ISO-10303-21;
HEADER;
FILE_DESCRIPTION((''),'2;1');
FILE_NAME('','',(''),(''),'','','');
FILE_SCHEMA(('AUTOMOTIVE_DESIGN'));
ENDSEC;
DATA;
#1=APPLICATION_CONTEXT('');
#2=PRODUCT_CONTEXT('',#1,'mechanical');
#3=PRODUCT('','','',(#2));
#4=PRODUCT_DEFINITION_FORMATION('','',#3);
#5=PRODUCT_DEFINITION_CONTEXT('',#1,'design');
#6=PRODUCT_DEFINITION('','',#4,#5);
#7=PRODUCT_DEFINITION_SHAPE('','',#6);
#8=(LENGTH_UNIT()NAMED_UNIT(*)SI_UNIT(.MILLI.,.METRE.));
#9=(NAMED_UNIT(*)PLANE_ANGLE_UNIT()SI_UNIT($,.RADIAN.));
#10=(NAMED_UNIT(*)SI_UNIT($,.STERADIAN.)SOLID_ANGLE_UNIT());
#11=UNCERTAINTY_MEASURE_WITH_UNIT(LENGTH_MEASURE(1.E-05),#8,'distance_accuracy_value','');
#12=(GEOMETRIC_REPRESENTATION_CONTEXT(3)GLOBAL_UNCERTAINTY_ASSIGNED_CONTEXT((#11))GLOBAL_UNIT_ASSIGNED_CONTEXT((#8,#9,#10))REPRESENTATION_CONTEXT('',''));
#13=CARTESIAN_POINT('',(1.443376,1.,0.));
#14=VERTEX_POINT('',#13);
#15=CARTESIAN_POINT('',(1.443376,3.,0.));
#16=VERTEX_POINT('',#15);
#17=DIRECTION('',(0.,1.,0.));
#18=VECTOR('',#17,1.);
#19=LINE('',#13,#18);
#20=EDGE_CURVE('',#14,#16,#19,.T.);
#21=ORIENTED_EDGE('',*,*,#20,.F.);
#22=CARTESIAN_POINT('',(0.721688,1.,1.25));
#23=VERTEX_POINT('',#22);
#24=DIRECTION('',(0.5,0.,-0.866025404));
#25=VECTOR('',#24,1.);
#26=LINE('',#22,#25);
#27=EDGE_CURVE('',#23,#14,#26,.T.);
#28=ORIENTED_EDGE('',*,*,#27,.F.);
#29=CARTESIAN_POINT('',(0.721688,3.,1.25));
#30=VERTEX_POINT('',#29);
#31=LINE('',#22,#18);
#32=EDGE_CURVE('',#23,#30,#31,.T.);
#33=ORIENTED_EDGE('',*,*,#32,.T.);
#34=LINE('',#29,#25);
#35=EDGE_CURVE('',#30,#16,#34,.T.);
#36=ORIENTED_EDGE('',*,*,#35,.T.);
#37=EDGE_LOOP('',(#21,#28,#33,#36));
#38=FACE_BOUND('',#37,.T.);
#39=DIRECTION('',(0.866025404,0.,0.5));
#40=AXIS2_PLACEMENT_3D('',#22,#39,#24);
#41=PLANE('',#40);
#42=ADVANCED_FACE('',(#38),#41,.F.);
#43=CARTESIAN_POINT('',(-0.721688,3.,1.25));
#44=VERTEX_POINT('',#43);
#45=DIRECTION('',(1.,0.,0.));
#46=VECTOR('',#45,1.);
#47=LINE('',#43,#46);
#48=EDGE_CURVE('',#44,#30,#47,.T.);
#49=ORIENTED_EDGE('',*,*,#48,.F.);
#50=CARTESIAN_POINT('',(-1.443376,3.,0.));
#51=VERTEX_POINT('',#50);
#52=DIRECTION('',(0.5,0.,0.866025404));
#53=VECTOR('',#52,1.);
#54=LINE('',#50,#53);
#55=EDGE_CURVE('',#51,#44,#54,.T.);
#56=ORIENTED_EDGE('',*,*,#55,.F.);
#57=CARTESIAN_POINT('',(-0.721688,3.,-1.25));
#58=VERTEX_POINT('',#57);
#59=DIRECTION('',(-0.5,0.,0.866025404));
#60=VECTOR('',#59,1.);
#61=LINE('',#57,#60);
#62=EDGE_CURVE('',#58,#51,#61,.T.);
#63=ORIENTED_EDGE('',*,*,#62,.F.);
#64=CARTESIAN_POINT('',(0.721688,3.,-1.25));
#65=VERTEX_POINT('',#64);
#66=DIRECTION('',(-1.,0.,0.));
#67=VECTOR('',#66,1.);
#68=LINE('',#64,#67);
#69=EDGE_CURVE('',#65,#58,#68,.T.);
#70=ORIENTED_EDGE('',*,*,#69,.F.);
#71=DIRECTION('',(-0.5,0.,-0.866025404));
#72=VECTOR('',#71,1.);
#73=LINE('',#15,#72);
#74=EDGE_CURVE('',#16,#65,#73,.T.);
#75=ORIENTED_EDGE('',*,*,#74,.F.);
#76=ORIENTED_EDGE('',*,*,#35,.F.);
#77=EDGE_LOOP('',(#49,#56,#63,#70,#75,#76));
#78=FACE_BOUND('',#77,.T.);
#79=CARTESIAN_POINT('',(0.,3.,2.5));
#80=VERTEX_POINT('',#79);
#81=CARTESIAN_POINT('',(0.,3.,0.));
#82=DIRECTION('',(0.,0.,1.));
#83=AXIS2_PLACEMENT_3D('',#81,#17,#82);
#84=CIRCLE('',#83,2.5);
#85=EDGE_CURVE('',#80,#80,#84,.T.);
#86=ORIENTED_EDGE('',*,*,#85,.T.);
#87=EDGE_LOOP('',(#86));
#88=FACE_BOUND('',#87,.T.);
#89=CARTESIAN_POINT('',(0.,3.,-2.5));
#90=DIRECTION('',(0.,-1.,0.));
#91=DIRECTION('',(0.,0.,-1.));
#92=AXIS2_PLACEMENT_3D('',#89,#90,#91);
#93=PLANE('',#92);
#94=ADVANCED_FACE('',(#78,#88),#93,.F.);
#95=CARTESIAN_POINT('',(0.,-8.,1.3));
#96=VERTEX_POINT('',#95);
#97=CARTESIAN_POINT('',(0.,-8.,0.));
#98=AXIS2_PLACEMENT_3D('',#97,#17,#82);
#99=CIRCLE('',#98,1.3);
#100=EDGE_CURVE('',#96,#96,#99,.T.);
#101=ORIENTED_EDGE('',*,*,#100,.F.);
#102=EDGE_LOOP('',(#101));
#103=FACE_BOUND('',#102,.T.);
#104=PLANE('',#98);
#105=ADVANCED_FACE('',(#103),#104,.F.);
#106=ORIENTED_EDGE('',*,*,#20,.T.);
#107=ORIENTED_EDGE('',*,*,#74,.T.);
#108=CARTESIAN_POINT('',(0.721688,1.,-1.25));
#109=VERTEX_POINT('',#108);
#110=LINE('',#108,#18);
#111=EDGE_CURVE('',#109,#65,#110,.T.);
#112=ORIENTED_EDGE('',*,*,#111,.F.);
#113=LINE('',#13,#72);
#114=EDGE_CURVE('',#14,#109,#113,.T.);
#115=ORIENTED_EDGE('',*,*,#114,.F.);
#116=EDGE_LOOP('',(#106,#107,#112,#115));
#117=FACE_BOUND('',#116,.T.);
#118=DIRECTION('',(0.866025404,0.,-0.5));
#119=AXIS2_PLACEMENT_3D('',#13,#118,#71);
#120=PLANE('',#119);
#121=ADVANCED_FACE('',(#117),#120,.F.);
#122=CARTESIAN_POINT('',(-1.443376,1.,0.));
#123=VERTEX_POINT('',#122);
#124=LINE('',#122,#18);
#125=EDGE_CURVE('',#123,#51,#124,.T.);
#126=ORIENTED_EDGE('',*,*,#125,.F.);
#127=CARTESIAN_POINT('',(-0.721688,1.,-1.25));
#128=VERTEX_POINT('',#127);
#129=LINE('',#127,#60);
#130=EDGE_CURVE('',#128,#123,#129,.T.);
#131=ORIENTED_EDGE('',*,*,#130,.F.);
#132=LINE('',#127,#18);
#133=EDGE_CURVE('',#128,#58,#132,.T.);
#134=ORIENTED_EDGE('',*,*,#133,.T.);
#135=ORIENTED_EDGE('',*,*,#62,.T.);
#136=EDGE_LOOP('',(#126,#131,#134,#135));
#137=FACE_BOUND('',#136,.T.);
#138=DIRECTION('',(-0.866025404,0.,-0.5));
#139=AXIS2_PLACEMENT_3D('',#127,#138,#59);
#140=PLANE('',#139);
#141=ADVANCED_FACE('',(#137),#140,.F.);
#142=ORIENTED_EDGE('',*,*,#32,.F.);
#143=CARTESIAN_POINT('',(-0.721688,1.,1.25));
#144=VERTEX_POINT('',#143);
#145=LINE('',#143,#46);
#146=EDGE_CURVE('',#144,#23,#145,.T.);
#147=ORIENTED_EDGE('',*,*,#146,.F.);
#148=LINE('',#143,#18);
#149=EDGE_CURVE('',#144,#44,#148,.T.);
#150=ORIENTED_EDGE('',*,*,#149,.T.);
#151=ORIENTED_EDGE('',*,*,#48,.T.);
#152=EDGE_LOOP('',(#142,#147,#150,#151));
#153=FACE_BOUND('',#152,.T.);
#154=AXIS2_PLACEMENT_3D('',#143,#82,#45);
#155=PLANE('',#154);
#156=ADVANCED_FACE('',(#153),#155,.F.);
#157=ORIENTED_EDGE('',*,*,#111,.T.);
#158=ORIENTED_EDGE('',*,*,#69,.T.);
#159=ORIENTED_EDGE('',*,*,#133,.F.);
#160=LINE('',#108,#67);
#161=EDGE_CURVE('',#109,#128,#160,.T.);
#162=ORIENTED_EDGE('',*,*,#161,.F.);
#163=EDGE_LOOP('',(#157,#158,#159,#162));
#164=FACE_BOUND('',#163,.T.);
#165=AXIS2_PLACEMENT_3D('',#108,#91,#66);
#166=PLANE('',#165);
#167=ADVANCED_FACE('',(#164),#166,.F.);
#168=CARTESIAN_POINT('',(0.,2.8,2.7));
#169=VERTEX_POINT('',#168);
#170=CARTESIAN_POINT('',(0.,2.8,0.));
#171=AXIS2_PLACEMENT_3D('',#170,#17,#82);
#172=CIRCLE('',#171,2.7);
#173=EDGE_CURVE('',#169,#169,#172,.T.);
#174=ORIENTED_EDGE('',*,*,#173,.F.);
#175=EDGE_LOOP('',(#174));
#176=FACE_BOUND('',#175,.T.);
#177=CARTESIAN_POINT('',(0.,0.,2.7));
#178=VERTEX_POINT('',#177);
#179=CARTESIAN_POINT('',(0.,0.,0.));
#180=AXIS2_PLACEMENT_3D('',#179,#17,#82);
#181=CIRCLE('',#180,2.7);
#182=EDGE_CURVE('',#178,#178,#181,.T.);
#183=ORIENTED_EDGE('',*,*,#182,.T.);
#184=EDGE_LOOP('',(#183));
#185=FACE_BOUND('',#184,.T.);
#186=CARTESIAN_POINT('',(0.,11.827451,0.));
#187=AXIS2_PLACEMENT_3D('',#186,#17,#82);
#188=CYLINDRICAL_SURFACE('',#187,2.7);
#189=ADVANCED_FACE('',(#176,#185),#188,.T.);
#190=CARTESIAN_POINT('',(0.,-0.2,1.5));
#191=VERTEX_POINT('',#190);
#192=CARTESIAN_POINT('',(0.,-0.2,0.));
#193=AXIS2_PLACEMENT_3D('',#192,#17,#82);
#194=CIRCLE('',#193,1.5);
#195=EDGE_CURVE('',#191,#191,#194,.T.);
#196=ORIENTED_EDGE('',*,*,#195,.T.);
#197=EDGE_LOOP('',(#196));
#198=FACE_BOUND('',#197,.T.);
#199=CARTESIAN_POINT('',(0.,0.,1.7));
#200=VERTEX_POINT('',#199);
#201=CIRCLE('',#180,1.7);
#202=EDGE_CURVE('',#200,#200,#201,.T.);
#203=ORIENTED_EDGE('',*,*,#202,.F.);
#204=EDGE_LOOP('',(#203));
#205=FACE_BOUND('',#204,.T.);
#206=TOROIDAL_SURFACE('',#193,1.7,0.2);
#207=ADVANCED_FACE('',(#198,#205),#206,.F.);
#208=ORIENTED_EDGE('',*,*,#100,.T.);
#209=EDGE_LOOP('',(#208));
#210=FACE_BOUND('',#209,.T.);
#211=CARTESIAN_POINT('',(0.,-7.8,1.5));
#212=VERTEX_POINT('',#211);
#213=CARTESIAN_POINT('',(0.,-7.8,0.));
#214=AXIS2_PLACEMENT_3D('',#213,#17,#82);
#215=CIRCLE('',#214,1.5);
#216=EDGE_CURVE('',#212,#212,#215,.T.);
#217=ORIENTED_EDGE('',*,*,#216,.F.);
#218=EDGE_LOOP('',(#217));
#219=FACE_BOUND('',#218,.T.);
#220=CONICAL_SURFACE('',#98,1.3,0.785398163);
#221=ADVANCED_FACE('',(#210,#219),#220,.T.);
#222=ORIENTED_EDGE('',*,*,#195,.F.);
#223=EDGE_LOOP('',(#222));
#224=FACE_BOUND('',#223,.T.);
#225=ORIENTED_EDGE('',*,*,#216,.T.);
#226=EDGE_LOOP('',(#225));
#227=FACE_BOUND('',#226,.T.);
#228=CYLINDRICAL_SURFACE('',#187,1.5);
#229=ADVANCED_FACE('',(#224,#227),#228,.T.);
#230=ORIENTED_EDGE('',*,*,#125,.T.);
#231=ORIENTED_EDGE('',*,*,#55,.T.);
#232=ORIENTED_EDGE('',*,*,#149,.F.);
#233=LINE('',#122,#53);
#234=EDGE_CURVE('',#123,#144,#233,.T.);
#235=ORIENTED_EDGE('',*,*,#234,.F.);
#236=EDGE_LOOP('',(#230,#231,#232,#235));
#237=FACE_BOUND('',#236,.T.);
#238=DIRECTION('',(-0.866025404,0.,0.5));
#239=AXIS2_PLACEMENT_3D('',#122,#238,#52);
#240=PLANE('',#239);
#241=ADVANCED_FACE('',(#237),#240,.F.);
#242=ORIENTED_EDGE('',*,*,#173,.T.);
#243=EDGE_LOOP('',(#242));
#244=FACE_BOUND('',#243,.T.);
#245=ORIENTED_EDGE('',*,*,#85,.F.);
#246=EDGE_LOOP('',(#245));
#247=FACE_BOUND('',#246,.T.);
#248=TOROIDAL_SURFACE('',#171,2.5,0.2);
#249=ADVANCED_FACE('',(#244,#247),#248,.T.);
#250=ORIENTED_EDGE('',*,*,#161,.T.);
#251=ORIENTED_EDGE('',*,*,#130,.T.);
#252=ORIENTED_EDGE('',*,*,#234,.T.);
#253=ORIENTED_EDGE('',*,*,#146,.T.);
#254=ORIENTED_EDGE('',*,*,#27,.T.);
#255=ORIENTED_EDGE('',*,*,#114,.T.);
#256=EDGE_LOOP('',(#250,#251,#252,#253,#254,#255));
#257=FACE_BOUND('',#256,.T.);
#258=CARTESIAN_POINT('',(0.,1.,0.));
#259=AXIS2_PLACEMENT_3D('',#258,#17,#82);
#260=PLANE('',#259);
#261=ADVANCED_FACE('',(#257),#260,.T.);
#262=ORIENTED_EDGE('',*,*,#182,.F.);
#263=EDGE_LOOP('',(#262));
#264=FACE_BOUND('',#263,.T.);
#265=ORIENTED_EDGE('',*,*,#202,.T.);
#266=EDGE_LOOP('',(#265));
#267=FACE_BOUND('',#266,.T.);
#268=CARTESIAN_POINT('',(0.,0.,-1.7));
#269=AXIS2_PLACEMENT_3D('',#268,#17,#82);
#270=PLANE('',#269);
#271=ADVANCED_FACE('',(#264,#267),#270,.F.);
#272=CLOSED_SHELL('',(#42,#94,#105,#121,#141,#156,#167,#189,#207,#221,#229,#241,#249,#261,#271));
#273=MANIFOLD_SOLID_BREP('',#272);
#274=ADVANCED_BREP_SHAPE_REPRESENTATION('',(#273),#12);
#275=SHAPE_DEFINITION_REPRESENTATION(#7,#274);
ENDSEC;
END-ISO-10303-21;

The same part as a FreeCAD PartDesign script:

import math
import FreeCAD as App
import Part
import Sketcher
Q = App.Units.Quantity


def add_polygon(sketch, points):
    """Adds a closed chain of lines whose ends are joined by coincident constraints."""
    first, n = sketch.GeometryCount, len(points)
    for a, b in zip(points, points[1:] + points[:1]):
        sketch.addGeometry(Part.LineSegment(App.Vector(*a, 0), App.Vector(*b, 0)), False)
    for i in range(n):
        sketch.addConstraint(Sketcher.Constraint("Coincident", first + i, 2, first + (i + 1) % n, 1))

doc = App.newDocument("Part")
body = doc.addObject("PartDesign::Body", "Body")

sketch1 = body.newObject("Sketcher::SketchObject", "Sketch")
sketch1.AttachmentSupport = (doc.getObject("YZ_Plane"), [""])
sketch1.MapMode = "FlatFace"
sketch1.addGeometry([
    Part.LineSegment(App.Vector(3, 0, 0), App.Vector(-8, 0, 0)),
    Part.LineSegment(App.Vector(-8, 0, 0), App.Vector(-8, -1.3, 0)),
    Part.LineSegment(App.Vector(-8, -1.3, 0), App.Vector(-7.8, -1.5, 0)),
    Part.LineSegment(App.Vector(-7.8, -1.5, 0), App.Vector(-0.2, -1.5, 0)),
    Part.ArcOfCircle(Part.Circle(App.Vector(-0.2, -1.7, 0), App.Vector(0, 0, 1), 0.2), math.radians(0), math.radians(90)),
    Part.LineSegment(App.Vector(0, -1.7, 0), App.Vector(0, -2.7, 0)),
    Part.LineSegment(App.Vector(0, -2.7, 0), App.Vector(2.8, -2.7, 0)),
    Part.ArcOfCircle(Part.Circle(App.Vector(2.8, -2.5, 0), App.Vector(0, 0, 1), 0.2), math.radians(-90), math.radians(0)),
    Part.LineSegment(App.Vector(3, -2.5, 0), App.Vector(3, 0, 0)),
], False)
sketch1.addConstraint([
    Sketcher.Constraint("Coincident", 0, 2, 1, 1),
    Sketcher.Constraint("Coincident", 1, 2, 2, 1),
    Sketcher.Constraint("Coincident", 2, 2, 3, 1),
    Sketcher.Constraint("Tangent", 3, 2, 4, 2),
    Sketcher.Constraint("Tangent", 4, 1, 5, 1),
    Sketcher.Constraint("Coincident", 5, 2, 6, 1),
    Sketcher.Constraint("Tangent", 6, 2, 7, 1),
    Sketcher.Constraint("Tangent", 7, 2, 8, 1),
    Sketcher.Constraint("Coincident", 8, 2, 0, 1),
    Sketcher.Constraint("Horizontal", 0),
    Sketcher.Constraint("Vertical", 1),
    Sketcher.Constraint("Horizontal", 3),
    Sketcher.Constraint("Vertical", 5),
    Sketcher.Constraint("Horizontal", 6),
    Sketcher.Constraint("Vertical", 8),
    Sketcher.Constraint("Equal", 4, 7),
    Sketcher.Constraint("PointOnObject", 0, 2, -1),
    Sketcher.Constraint("PointOnObject", 4, 1, -2),
    Sketcher.Constraint("Radius", 4, 0.2),
    Sketcher.Constraint("DistanceX", 0, 2, 0, 1, 11.0),
    Sketcher.Constraint("DistanceY", 5, 2, 5, 1, 1.0),
    Sketcher.Constraint("Angle", 2, Q("-45 deg")),
    Sketcher.Constraint("DistanceX", 3, 1, 3, 2, 7.6),
    Sketcher.Constraint("DistanceX", 6, 1, 6, 2, 2.8),
    Sketcher.Constraint("DistanceY", 1, 2, 1, 1, 1.3),
])
revolution = body.newObject("PartDesign::Revolution", "Revolution")
revolution.Profile = sketch1
revolution.ReferenceAxis = (sketch1, ["H_Axis"])
revolution.Angle = 360

sketch2 = body.newObject("Sketcher::SketchObject", "Sketch001")
sketch2.AttachmentSupport = (doc.getObject("XZ_Plane"), [""])
sketch2.MapMode = "FlatFace"
sketch2.AttachmentOffset = App.Placement(App.Vector(0, 0, -3), App.Rotation())
add_polygon(sketch2, [(0.7, -1.2), (-0.7, -1.2), (-1.4, 0), (-0.7, 1.2), (0.7, 1.2), (1.4, 0)])
sketch2.addConstraint([
    Sketcher.Constraint("Horizontal", 0),
    Sketcher.Constraint("Horizontal", 3),
    Sketcher.Constraint("Symmetric", 0, 2, 3, 2, -1, 1),
    Sketcher.Constraint("Symmetric", 1, 2, 4, 2, -1, 1),
    Sketcher.Constraint("PointOnObject", 1, 2, -1),
    Sketcher.Constraint("Parallel", 2, 5),
    Sketcher.Constraint("Vertical", 0, 2, 2, 2),
    Sketcher.Constraint("Angle", 1, Q("120 deg")),
    Sketcher.Constraint("DistanceY", 0, 2, 2, 2, 2.5),
    Sketcher.Constraint("DistanceX", 0, 2, 0, 1, 1.443376),
])
pocket1 = body.newObject("PartDesign::Pocket", "Pocket")
pocket1.Profile = sketch2
pocket1.Length = 2
pocket1.Reversed = True

doc.recompute()
